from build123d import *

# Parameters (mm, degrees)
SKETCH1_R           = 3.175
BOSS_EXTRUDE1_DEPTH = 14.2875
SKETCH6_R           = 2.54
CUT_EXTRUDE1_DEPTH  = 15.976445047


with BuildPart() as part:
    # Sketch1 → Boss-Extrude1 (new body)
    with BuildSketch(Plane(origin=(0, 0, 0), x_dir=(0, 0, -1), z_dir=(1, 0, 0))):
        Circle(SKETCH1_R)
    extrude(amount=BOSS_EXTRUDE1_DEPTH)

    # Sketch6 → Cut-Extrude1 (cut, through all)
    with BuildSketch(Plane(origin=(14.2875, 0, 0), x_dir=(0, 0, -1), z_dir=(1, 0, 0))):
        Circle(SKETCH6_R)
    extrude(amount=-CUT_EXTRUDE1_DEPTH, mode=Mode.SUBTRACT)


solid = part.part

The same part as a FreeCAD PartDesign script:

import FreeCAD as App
import Part
import Sketcher

V = App.Vector
Q = App.Units.Quantity

doc = App.newDocument("Part")
body = doc.addObject("PartDesign::Body", "Body")

# Sketch on YZ plane
sketch1 = doc.addObject("Sketcher::SketchObject", "Sketch")
body.addObject(sketch1)
sketch1.AttachmentSupport = (doc.YZ_Plane, [""])
sketch1.MapMode = "FlatFace"
sketch1.addGeometry(Part.Circle(V(0, 0, 0), V(0, 0, 1), 3.2), False)
sketch1.addConstraint([
    Sketcher.Constraint("Coincident", 0, 3, -1, 1),
    Sketcher.Constraint("Diameter", 0, Q("0.25 in")),
])
pad1 = doc.addObject("PartDesign::Pad", "Pad")
body.addObject(pad1)
pad1.Profile = sketch1
pad1.Length = Q("0.5625 in")

# Sketch on YZ plane
sketch2 = doc.addObject("Sketcher::SketchObject", "Sketch001")
body.addObject(sketch2)
sketch2.AttachmentSupport = (doc.YZ_Plane, [""])
sketch2.MapMode = "FlatFace"
sketch2.AttachmentOffset = App.Placement(V(0, 0, 0.5625 * 25.4), App.Rotation())
sketch2.addGeometry(Part.Circle(V(0, 0, 0), V(0, 0, 1), 2.5), False)
sketch2.addConstraint([
    Sketcher.Constraint("Coincident", 0, 3, -1, 1),
    Sketcher.Constraint("Diameter", 0, Q("0.2 in")),
])
pocket1 = doc.addObject("PartDesign::Pocket", "Pocket")
body.addObject(pocket1)
pocket1.Profile = sketch2
pocket1.Type = "ThroughAll"

doc.recompute()
